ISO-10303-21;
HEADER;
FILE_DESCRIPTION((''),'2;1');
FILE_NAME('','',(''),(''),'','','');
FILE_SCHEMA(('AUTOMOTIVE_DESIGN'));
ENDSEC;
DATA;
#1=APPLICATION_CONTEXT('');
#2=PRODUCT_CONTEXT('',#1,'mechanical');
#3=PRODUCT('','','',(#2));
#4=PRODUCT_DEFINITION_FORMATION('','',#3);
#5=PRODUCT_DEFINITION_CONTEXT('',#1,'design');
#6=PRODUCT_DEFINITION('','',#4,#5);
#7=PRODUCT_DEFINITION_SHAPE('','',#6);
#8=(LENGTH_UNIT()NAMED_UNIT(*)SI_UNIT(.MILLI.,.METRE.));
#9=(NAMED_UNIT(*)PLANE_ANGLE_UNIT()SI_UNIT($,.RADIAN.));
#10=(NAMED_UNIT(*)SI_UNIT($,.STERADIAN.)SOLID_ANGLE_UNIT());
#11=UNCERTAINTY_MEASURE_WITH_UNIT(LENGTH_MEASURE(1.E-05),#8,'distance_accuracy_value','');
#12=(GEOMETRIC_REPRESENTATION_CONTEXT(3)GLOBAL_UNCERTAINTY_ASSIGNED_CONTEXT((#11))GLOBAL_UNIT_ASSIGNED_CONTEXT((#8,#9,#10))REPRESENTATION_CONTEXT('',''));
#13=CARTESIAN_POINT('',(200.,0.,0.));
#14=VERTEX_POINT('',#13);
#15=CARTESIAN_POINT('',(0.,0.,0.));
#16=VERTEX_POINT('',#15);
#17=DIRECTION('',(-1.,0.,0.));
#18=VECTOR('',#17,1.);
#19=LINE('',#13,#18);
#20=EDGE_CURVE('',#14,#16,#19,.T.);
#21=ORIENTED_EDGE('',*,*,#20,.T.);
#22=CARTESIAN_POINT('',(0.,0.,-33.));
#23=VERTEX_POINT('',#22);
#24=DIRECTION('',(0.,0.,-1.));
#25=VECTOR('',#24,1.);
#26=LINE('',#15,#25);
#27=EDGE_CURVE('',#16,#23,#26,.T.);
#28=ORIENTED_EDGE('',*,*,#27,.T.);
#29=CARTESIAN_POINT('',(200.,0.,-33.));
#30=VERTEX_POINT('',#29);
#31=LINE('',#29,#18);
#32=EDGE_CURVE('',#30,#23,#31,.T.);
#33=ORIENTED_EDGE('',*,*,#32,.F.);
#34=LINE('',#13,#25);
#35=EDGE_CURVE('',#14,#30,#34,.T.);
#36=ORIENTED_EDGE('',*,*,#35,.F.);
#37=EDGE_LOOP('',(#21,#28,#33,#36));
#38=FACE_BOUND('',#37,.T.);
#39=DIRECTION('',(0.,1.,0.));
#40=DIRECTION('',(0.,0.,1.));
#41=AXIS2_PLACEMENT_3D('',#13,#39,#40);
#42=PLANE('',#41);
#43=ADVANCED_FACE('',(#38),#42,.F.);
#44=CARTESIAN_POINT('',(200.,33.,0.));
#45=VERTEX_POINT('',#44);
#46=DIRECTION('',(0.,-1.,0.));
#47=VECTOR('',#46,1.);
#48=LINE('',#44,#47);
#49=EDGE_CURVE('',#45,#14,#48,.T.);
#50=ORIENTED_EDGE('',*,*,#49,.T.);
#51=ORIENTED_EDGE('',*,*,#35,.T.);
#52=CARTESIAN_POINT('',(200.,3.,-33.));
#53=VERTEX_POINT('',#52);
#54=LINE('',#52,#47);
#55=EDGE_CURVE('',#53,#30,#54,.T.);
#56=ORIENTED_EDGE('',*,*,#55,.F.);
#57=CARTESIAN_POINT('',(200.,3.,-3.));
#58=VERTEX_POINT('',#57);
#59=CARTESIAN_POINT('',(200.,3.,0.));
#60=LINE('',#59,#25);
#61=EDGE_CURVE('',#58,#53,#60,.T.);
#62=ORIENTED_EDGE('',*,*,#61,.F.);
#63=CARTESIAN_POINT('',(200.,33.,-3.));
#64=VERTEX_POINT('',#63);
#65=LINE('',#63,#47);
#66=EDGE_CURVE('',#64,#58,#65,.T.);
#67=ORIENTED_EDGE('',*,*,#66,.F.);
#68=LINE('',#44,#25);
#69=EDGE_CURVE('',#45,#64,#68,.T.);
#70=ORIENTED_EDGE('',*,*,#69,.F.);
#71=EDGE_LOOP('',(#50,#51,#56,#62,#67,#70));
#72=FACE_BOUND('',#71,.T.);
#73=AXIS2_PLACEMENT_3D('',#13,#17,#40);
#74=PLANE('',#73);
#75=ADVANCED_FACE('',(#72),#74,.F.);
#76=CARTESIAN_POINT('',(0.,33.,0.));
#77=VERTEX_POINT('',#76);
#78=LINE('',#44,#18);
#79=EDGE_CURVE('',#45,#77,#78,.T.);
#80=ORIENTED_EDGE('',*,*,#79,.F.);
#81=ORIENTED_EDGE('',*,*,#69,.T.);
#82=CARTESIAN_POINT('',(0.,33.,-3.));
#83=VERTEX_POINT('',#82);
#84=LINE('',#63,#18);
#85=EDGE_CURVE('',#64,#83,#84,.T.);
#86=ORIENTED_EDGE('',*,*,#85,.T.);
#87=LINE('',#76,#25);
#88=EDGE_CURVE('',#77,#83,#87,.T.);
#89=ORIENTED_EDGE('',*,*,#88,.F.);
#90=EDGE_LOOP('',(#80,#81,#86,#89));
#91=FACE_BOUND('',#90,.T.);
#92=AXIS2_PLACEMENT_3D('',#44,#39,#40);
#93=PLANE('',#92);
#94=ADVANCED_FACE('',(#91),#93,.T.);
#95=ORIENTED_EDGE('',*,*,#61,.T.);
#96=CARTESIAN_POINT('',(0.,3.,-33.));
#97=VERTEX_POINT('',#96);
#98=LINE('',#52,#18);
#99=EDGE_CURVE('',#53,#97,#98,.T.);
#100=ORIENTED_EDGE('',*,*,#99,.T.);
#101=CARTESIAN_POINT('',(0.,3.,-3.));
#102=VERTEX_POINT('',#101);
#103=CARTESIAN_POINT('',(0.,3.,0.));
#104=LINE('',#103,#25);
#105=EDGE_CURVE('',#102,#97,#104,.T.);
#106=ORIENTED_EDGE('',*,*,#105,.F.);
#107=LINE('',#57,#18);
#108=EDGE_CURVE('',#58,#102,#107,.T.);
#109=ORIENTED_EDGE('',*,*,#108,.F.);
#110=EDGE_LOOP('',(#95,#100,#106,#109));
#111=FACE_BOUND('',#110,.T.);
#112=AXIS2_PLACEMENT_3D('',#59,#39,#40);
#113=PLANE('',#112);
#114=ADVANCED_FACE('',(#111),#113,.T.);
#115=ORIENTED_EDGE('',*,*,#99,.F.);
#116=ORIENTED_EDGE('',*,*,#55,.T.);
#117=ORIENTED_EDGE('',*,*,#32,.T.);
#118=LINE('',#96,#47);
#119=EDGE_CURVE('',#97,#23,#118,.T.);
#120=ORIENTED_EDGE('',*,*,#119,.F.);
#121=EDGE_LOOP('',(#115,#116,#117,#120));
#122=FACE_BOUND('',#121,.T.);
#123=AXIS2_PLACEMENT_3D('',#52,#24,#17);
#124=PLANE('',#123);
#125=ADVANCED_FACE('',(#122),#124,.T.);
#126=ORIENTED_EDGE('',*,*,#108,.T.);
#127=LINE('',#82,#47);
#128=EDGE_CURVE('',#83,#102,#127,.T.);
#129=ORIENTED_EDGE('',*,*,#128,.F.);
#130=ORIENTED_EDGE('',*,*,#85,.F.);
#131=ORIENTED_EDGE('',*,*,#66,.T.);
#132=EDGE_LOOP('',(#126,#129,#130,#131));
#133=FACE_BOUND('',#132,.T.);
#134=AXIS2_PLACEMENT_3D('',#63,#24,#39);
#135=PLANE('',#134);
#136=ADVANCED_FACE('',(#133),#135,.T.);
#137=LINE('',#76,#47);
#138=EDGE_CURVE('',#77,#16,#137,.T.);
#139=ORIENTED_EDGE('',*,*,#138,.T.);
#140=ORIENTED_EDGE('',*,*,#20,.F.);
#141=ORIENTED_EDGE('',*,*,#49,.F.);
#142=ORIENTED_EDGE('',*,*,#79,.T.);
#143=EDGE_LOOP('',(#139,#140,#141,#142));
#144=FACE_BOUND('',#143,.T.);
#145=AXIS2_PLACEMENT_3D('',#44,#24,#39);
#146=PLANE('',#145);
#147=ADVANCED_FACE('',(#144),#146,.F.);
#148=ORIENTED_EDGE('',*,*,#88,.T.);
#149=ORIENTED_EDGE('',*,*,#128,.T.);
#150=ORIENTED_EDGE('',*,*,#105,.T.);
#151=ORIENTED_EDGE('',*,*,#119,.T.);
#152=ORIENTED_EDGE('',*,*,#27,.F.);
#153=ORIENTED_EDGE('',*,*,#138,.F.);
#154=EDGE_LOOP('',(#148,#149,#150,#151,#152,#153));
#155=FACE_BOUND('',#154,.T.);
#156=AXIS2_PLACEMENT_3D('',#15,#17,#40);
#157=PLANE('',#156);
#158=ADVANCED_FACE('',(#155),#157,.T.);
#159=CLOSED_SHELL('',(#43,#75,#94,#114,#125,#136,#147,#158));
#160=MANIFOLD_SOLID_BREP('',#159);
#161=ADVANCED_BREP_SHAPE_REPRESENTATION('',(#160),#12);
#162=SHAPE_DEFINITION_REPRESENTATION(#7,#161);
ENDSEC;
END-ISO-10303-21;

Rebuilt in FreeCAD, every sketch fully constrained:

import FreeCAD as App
import Part
import Sketcher

V = App.Vector
Q = App.Units.Quantity

doc = App.newDocument("Part")
params = doc.addObject("Spreadsheet::Sheet", "Params")
for row, (alias, value) in enumerate([
    ("sketch1_width", "33 mm"),
    ("sketch1_width2", "3 mm"),
    ("pad1_length", "200 mm"),
], start=1):
    params.set(f"A{row}", alias)
    params.set(f"B{row}", "=" + value)
    params.setAlias(f"B{row}", alias)

body = doc.addObject("PartDesign::Body", "Body")

sketch1 = body.newObject("Sketcher::SketchObject", "Sketch")
sketch1.AttachmentSupport = (doc.getObject("YZ_Plane"), [""])
sketch1.MapMode = "FlatFace"
sketch1.addGeometry(Part.LineSegment(V(33, 0, 0), V(0, 0, 0)), False)
sketch1.addGeometry(Part.LineSegment(V(0, 0, 0), V(0, -33, 0)), False)
sketch1.addGeometry(Part.LineSegment(V(0, -33, 0), V(3, -33, 0)), False)
sketch1.addGeometry(Part.LineSegment(V(3, -33, 0), V(3, -3, 0)), False)
sketch1.addGeometry(Part.LineSegment(V(3, -3, 0), V(33, -3, 0)), False)
sketch1.addGeometry(Part.LineSegment(V(33, -3, 0), V(33, 0, 0)), False)
sketch1.addConstraint(Sketcher.Constraint("Coincident", 0, 2, 1, 1))
sketch1.addConstraint(Sketcher.Constraint("Coincident", 1, 2, 2, 1))
sketch1.addConstraint(Sketcher.Constraint("Coincident", 2, 2, 3, 1))
sketch1.addConstraint(Sketcher.Constraint("Coincident", 3, 2, 4, 1))
sketch1.addConstraint(Sketcher.Constraint("Coincident", 4, 2, 5, 1))
sketch1.addConstraint(Sketcher.Constraint("Coincident", 5, 2, 0, 1))
sketch1.addConstraint(Sketcher.Constraint("Horizontal", 0))
sketch1.addConstraint(Sketcher.Constraint("Vertical", 1))
sketch1.addConstraint(Sketcher.Constraint("Horizontal", 2))
sketch1.addConstraint(Sketcher.Constraint("Vertical", 3))
sketch1.addConstraint(Sketcher.Constraint("Horizontal", 4))
sketch1.addConstraint(Sketcher.Constraint("Vertical", 5))
sketch1.addConstraint(Sketcher.Constraint("Coincident", 0, 2, -1, 1))
sketch1.addConstraint(Sketcher.Constraint("Equal", 0, 1))
sketch1.addConstraint(Sketcher.Constraint("Equal", 4, 3))
sketch1.addConstraint(Sketcher.Constraint("DistanceX", 0, 2, 0, 1, Q("33 mm")))
sketch1.addConstraint(Sketcher.Constraint("DistanceX", 2, 1, 2, 2, Q("3 mm")))
sketch1.setExpression("Constraints[15]", "Params.sketch1_width")
sketch1.setExpression("Constraints[16]", "Params.sketch1_width2")
pad1 = body.newObject("PartDesign::Pad", "Pad")
pad1.Profile = sketch1
pad1.setExpression("Length", "Params.pad1_length")

doc.recompute()
